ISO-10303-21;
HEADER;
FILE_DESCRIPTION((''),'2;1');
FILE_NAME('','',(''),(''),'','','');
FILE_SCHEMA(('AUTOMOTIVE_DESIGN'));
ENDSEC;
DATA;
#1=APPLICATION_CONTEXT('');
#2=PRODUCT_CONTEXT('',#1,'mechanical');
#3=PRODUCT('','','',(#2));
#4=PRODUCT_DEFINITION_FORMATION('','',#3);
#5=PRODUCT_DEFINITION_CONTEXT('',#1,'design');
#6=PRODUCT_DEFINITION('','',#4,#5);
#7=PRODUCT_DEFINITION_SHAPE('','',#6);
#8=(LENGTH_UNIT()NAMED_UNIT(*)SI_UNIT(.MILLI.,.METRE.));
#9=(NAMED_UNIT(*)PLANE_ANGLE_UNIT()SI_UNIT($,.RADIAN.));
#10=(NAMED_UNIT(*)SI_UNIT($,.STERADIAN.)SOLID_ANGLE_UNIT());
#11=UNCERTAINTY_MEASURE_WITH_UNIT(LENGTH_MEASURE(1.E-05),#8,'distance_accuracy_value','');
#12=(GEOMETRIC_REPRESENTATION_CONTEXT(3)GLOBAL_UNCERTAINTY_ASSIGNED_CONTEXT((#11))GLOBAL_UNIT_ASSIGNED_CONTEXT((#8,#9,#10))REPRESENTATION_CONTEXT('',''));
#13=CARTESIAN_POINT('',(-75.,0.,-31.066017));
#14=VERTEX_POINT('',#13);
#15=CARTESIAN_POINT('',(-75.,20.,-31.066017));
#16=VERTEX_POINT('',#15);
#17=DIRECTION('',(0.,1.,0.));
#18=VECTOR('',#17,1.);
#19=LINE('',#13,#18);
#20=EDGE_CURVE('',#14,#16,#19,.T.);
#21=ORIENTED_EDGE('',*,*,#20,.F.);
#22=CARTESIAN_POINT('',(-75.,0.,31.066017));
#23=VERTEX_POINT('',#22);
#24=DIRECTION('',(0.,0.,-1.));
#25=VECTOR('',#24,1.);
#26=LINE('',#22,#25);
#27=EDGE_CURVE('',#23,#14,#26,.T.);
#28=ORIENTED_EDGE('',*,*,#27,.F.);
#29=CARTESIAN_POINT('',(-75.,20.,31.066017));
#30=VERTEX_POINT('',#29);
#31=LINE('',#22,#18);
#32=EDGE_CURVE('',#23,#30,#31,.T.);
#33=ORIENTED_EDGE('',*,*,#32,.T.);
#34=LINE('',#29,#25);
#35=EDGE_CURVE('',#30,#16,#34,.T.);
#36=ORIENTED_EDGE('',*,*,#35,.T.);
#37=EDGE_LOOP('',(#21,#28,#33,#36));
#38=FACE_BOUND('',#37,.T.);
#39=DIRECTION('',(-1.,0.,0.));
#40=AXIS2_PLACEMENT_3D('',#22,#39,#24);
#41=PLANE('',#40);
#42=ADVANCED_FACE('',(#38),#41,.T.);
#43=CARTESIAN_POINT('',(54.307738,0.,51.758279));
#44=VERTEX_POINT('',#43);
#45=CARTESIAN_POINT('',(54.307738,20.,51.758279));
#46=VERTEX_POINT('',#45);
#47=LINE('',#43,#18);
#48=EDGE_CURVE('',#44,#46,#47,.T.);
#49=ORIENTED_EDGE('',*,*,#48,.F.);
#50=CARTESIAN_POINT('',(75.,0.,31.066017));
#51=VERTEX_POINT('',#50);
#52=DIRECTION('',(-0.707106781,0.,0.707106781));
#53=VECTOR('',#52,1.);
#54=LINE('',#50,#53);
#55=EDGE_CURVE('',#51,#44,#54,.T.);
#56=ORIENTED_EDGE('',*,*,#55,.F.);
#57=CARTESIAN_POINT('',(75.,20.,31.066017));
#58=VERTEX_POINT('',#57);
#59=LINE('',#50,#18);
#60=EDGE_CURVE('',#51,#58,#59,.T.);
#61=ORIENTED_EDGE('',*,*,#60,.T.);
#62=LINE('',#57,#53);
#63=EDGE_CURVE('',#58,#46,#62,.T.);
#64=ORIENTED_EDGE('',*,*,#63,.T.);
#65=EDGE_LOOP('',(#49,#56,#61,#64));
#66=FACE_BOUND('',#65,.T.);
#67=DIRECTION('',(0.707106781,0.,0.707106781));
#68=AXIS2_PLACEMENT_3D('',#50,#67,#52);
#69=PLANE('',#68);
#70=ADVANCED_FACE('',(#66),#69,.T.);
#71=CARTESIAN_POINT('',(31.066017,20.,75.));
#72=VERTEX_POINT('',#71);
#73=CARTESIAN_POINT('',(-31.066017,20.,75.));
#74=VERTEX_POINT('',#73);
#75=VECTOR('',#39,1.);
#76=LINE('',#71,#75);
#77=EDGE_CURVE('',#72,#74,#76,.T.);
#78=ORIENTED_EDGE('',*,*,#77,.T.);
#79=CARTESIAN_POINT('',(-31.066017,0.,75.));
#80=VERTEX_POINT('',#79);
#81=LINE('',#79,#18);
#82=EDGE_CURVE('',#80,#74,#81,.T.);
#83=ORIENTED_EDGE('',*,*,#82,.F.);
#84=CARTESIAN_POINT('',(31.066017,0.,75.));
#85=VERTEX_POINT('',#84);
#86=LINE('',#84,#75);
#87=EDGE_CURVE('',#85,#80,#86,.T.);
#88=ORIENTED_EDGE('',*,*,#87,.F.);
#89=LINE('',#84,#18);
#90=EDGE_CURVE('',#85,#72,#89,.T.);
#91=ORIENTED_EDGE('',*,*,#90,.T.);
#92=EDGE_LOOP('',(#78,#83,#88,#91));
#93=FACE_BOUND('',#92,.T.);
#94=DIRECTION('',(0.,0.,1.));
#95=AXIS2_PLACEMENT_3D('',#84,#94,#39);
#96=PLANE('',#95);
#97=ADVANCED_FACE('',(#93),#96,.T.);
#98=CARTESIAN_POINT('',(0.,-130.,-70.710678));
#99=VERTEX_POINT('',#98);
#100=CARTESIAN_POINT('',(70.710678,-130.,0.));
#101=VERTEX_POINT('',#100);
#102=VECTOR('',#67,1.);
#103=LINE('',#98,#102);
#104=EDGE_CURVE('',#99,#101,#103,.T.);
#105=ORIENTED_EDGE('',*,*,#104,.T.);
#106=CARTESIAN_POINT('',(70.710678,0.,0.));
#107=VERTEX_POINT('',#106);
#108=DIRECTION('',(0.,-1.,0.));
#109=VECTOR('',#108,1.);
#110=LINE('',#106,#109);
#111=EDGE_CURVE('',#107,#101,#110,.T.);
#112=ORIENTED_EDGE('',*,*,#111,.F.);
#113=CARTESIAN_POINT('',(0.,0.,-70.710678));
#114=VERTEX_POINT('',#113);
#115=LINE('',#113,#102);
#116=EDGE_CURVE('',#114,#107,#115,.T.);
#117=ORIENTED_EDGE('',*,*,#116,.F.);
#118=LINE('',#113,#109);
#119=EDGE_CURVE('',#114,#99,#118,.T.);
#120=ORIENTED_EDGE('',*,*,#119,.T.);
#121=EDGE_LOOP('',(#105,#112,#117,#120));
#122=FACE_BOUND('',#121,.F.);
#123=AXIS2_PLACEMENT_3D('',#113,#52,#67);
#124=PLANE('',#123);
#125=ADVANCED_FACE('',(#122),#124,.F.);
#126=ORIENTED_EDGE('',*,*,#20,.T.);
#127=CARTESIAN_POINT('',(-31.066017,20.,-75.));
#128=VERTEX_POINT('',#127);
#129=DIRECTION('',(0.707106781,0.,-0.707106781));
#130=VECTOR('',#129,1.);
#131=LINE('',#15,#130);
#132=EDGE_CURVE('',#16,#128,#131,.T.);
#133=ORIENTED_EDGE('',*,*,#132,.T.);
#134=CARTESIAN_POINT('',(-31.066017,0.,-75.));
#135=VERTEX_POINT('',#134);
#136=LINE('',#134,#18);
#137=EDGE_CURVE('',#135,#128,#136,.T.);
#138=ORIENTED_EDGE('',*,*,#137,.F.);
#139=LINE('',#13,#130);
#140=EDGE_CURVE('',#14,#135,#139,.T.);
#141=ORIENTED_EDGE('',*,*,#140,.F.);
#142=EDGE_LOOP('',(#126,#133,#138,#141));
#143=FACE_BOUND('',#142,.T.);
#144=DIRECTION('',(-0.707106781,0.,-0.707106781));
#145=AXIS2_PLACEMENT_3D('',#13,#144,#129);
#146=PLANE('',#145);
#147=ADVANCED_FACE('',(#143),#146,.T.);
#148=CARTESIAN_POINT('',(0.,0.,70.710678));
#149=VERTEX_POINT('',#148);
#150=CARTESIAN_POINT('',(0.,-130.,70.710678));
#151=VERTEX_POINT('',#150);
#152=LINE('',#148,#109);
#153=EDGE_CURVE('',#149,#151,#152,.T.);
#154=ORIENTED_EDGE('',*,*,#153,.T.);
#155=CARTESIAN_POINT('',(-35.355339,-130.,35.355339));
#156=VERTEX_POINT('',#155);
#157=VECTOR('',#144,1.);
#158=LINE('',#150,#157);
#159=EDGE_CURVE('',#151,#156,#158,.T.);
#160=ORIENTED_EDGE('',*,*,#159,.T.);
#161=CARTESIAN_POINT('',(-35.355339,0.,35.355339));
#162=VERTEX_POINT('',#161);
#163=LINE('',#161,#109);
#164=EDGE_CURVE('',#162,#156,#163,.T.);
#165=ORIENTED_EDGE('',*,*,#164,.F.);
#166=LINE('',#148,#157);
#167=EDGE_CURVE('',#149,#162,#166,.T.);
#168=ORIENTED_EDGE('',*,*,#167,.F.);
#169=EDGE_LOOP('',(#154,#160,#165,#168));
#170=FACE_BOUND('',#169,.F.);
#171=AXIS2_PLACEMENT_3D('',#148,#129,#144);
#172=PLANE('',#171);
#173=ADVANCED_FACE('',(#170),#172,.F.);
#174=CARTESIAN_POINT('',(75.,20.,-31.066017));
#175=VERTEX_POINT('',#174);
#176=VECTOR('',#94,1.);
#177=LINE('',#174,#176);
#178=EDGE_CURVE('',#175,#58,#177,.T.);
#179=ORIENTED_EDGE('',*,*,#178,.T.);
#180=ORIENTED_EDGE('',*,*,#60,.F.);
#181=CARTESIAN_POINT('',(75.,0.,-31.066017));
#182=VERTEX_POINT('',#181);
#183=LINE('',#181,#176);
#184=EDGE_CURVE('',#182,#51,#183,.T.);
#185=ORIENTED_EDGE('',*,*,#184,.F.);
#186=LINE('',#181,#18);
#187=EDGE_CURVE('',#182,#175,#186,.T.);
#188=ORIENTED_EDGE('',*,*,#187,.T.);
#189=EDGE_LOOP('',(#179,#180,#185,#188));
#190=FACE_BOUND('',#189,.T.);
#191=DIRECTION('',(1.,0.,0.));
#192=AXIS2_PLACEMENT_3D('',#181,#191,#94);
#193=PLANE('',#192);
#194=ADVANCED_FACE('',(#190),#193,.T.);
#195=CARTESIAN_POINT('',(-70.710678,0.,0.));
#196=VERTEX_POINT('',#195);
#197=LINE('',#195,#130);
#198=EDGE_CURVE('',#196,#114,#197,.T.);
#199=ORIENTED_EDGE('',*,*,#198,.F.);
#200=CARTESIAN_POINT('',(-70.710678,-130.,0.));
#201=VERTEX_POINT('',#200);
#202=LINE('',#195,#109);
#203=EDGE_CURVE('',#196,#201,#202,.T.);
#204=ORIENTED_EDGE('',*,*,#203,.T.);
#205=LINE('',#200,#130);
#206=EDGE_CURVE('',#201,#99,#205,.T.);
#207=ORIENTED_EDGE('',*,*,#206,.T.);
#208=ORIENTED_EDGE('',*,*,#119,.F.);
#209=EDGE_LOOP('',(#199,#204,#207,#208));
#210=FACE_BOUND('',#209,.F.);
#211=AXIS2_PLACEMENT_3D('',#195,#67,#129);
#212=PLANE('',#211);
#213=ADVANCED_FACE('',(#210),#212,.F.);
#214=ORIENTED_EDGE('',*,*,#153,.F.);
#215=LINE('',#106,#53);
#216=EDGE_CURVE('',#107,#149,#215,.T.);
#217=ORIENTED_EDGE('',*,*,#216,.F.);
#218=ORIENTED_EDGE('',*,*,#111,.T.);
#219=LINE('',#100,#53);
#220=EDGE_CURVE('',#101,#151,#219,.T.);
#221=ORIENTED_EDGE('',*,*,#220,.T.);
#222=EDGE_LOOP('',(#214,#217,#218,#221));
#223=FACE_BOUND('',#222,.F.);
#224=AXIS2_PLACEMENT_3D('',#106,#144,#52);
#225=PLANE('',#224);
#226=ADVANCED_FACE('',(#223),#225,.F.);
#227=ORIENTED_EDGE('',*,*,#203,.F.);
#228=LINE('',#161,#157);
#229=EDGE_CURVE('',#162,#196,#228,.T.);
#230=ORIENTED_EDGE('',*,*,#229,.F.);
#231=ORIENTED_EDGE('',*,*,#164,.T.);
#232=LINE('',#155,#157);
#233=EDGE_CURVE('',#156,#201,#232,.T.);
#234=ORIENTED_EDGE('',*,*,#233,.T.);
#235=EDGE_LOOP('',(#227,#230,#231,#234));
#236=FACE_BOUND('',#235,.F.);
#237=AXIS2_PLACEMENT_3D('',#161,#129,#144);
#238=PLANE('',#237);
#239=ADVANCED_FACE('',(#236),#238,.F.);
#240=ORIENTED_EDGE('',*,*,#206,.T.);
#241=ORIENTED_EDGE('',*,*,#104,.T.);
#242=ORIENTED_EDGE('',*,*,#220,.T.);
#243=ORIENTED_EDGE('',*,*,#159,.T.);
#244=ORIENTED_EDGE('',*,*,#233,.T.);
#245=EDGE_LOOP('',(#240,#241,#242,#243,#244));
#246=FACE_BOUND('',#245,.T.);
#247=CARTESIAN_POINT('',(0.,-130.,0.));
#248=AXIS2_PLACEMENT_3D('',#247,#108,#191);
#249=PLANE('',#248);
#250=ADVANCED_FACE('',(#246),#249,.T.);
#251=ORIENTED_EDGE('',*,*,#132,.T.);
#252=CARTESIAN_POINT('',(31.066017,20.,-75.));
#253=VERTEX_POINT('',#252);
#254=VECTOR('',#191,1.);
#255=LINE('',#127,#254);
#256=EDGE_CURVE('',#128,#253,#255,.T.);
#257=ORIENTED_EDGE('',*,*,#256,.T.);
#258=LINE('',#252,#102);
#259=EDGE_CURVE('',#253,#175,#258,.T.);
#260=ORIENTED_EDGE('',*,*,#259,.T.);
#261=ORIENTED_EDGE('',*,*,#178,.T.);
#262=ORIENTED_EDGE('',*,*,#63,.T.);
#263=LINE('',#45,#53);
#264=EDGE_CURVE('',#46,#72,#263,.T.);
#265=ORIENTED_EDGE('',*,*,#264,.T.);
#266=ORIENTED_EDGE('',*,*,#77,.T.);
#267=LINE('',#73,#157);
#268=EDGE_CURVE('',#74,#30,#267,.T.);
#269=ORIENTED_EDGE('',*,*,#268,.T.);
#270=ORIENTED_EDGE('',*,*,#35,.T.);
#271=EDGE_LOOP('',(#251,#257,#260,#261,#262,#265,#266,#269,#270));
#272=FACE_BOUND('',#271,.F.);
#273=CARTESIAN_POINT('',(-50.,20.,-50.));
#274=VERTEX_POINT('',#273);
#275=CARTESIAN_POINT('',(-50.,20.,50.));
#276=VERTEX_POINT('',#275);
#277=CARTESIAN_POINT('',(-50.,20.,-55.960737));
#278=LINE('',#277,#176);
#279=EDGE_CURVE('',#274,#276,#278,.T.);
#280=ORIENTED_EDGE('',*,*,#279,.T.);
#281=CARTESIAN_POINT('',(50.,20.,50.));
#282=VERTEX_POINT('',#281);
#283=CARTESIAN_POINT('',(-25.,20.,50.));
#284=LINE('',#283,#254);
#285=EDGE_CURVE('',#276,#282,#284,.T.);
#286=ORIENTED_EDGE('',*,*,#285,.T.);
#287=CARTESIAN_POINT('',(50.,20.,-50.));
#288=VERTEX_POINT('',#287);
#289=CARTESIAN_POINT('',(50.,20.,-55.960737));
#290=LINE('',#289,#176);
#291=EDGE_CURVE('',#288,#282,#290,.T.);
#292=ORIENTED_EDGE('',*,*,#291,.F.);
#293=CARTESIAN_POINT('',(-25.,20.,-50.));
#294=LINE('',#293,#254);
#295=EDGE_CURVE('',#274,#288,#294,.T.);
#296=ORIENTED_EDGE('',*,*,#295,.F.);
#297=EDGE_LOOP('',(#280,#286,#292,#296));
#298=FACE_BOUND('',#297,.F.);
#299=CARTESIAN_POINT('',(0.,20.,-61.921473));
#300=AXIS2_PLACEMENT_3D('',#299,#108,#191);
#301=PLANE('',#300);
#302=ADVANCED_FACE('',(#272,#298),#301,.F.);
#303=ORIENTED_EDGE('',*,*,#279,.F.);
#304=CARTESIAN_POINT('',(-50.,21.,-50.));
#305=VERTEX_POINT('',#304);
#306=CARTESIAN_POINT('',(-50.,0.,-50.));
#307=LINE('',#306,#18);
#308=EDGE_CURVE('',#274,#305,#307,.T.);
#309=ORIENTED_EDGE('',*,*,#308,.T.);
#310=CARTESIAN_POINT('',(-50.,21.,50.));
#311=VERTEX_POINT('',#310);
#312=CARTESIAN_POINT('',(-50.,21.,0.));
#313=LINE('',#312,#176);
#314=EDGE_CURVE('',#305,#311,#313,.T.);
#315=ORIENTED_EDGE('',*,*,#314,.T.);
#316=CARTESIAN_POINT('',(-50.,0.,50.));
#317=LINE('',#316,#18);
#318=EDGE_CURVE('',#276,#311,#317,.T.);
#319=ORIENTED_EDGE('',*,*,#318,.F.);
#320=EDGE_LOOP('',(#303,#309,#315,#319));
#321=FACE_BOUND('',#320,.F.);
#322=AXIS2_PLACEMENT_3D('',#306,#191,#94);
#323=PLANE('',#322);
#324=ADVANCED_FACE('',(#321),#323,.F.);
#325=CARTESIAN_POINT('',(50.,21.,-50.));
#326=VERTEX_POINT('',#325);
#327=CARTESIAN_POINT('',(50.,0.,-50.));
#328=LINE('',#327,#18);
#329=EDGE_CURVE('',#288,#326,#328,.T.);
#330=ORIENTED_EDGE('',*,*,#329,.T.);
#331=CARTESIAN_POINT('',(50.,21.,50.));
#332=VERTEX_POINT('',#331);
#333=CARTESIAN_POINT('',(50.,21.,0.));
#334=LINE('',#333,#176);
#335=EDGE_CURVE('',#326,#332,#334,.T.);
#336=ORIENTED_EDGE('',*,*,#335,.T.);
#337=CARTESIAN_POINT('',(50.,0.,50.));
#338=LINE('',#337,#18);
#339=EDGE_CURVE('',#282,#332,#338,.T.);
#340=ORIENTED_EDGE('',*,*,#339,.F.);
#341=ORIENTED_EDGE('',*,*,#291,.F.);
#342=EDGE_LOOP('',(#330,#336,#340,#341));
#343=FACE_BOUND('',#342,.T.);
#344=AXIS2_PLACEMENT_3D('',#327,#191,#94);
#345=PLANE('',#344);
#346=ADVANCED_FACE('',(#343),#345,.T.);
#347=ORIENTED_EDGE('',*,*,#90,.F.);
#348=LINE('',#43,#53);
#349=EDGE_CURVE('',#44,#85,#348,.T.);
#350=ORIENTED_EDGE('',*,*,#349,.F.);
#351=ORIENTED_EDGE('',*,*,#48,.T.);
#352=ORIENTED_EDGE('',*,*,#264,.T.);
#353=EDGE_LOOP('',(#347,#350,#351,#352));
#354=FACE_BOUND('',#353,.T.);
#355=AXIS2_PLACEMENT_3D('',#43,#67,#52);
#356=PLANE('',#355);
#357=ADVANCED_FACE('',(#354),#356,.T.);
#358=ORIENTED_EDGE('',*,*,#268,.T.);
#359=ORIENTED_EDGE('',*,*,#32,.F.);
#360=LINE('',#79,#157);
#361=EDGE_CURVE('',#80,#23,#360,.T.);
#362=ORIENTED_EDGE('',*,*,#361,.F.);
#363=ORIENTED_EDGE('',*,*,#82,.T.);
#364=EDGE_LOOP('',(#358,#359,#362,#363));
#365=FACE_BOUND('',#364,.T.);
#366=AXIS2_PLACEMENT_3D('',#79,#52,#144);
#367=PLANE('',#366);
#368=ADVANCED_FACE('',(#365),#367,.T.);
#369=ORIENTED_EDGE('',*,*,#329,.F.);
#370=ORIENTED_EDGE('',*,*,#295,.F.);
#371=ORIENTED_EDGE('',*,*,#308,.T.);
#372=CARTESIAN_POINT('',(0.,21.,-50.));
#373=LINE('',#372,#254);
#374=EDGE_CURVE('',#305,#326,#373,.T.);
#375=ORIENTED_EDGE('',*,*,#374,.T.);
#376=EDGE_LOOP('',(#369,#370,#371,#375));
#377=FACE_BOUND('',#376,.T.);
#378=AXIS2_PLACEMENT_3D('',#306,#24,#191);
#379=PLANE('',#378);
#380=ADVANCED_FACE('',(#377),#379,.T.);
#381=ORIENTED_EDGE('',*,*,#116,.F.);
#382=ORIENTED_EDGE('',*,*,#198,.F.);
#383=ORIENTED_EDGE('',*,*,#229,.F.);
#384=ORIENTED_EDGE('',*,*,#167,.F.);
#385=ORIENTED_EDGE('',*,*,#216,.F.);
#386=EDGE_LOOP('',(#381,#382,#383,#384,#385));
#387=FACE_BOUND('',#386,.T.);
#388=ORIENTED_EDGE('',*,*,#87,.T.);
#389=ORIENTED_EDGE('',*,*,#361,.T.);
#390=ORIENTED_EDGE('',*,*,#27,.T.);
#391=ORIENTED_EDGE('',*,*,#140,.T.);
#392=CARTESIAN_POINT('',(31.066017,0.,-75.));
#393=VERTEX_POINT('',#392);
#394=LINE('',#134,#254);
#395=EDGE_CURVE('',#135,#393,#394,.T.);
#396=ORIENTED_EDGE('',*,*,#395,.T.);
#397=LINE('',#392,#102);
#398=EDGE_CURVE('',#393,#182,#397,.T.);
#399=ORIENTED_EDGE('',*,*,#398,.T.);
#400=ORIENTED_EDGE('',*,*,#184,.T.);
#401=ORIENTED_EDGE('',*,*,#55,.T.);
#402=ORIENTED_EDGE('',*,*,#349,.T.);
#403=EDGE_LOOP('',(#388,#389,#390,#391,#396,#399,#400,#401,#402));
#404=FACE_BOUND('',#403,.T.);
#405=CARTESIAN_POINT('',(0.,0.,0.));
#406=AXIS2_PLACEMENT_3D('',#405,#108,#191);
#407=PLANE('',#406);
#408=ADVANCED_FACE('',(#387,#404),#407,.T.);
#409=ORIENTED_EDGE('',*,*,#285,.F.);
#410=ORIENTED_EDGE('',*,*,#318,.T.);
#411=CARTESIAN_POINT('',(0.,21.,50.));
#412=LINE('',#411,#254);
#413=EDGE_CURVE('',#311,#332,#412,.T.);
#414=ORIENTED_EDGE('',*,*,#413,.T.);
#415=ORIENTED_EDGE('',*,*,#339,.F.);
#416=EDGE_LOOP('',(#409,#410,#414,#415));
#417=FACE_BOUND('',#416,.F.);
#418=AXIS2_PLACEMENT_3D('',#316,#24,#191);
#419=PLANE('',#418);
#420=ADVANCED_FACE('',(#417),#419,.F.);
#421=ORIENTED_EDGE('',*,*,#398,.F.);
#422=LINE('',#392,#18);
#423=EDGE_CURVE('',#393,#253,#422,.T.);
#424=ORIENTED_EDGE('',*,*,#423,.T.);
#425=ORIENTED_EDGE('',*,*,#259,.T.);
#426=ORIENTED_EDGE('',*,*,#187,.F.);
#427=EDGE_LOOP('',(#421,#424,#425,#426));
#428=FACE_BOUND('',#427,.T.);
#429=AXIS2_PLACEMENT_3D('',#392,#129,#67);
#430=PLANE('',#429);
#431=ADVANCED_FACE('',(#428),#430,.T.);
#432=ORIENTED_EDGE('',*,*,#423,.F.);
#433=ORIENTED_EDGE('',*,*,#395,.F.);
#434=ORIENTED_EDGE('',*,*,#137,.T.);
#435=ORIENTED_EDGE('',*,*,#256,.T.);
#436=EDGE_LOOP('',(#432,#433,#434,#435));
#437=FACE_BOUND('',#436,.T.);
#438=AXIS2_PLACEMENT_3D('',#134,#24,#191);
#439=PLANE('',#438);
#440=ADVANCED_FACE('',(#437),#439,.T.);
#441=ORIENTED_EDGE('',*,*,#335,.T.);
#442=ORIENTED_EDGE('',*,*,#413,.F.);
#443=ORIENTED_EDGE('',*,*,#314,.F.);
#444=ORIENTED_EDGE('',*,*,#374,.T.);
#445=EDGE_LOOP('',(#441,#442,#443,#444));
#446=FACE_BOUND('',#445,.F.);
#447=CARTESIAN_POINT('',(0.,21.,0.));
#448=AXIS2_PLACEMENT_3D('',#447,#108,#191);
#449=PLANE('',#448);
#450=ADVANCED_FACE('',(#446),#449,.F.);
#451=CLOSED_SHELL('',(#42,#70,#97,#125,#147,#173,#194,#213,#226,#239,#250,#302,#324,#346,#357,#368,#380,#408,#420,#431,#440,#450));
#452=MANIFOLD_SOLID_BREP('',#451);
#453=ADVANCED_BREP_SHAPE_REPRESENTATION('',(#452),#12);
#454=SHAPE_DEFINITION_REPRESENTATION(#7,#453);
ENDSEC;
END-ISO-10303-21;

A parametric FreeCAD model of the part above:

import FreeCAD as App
import Part
import Sketcher
from FreeCAD import Vector


def add_polygon(sketch, points):
    """Adds a closed chain of lines whose ends are joined by coincident constraints."""
    first, n = sketch.GeometryCount, len(points)
    for a, b in zip(points, points[1:] + points[:1]):
        sketch.addGeometry(Part.LineSegment(App.Vector(*a, 0), App.Vector(*b, 0)), False)
    for i in range(n):
        sketch.addConstraint(Sketcher.Constraint("Coincident", first + i, 2, first + (i + 1) % n, 1))

doc = App.newDocument("Part")
body = doc.addObject("PartDesign::Body", "Body")

sketch1 = body.newObject("Sketcher::SketchObject", "Sketch")
sketch1.AttachmentSupport = (doc.getObject("XZ_Plane"), [""])
sketch1.MapMode = "FlatFace"
add_polygon(sketch1, [(-31, -75), (31, -75), (75, -31), (75, 31), (54, 52), (31, 75), (-31, 75), (-75, 31), (-75, -31)])
sketch1.addConstraint([
    Sketcher.Constraint("Horizontal", 0),
    Sketcher.Constraint("Vertical", 2),
    Sketcher.Constraint("Horizontal", 5),
    Sketcher.Constraint("Vertical", 7),
    Sketcher.Constraint("Symmetric", 0, 2, 5, 2, -1, 1),
    Sketcher.Constraint("Symmetric", 1, 2, 6, 2, -1, 1),
    Sketcher.Constraint("Perpendicular", 1, 3),
    Sketcher.Constraint("Parallel", 3, 4),
    Sketcher.Constraint("Perpendicular", 6, 8),
    Sketcher.Constraint("Horizontal", 2, 2, 6, 2),
    Sketcher.Constraint("Horizontal", 1, 2, 7, 2),
    Sketcher.Constraint("Vertical", 0, 2, 4, 2),
    Sketcher.Constraint("Equal", 5, 2),
    Sketcher.Constraint("DistanceY", 0, 2, -1, 1, 75.0),
    Sketcher.Constraint("DistanceX", 0, 1, 0, 2, 62.132034),
    Sketcher.Constraint("DistanceY", -1, 1, 3, 2, 51.758279),
])
pad1 = body.newObject("PartDesign::Pad", "Pad")
pad1.Profile = sketch1
pad1.Length = 20
pad1.Reversed = True

sketch2 = body.newObject("Sketcher::SketchObject", "Sketch001")
sketch2.AttachmentSupport = (doc.getObject("XZ_Plane"), [""])
sketch2.MapMode = "FlatFace"
add_polygon(sketch2, [(-50, 50), (-50, -50), (50, -50), (50, 50)])
sketch2.addConstraint([
    Sketcher.Constraint("Vertical", 0),
    Sketcher.Constraint("Horizontal", 1),
    Sketcher.Constraint("Vertical", 2),
    Sketcher.Constraint("Horizontal", 3),
    Sketcher.Constraint("Symmetric", 0, 2, 2, 2, -1, 1),
    Sketcher.Constraint("Equal", 3, 0),
    Sketcher.Constraint("DistanceX", 1, 1, 1, 2, 100.0),
])
pad2 = body.newObject("PartDesign::Pad", "Pad001")
pad2.Profile = sketch2
pad2.Length = 21
pad2.Reversed = True

sketch3 = body.newObject("Sketcher::SketchObject", "Sketch002")
sketch3.AttachmentSupport = (doc.getObject("XZ_Plane"), [""])
sketch3.MapMode = "FlatFace"
add_polygon(sketch3, [(0, 71), (-35, 35), (-71, 0), (0, -71), (71, 0)])
sketch3.addConstraint([
    Sketcher.Constraint("Symmetric", 1, 2, 3, 2, -1, 1),
    Sketcher.Constraint("Symmetric", 2, 2, 4, 2, -1, 1),
    Sketcher.Constraint("PointOnObject", 1, 2, -1),
    Sketcher.Constraint("PointOnObject", 2, 2, -2),
    Sketcher.Constraint("Parallel", 0, 1),
    Sketcher.Constraint("Perpendicular", 1, 2),
    Sketcher.Constraint("Equal", 0, 1),
    Sketcher.Constraint("Distance", 0, 50.0),
])
pad3 = body.newObject("PartDesign::Pad", "Pad002")
pad3.Profile = sketch3
pad3.Length = 130

doc.recompute()
